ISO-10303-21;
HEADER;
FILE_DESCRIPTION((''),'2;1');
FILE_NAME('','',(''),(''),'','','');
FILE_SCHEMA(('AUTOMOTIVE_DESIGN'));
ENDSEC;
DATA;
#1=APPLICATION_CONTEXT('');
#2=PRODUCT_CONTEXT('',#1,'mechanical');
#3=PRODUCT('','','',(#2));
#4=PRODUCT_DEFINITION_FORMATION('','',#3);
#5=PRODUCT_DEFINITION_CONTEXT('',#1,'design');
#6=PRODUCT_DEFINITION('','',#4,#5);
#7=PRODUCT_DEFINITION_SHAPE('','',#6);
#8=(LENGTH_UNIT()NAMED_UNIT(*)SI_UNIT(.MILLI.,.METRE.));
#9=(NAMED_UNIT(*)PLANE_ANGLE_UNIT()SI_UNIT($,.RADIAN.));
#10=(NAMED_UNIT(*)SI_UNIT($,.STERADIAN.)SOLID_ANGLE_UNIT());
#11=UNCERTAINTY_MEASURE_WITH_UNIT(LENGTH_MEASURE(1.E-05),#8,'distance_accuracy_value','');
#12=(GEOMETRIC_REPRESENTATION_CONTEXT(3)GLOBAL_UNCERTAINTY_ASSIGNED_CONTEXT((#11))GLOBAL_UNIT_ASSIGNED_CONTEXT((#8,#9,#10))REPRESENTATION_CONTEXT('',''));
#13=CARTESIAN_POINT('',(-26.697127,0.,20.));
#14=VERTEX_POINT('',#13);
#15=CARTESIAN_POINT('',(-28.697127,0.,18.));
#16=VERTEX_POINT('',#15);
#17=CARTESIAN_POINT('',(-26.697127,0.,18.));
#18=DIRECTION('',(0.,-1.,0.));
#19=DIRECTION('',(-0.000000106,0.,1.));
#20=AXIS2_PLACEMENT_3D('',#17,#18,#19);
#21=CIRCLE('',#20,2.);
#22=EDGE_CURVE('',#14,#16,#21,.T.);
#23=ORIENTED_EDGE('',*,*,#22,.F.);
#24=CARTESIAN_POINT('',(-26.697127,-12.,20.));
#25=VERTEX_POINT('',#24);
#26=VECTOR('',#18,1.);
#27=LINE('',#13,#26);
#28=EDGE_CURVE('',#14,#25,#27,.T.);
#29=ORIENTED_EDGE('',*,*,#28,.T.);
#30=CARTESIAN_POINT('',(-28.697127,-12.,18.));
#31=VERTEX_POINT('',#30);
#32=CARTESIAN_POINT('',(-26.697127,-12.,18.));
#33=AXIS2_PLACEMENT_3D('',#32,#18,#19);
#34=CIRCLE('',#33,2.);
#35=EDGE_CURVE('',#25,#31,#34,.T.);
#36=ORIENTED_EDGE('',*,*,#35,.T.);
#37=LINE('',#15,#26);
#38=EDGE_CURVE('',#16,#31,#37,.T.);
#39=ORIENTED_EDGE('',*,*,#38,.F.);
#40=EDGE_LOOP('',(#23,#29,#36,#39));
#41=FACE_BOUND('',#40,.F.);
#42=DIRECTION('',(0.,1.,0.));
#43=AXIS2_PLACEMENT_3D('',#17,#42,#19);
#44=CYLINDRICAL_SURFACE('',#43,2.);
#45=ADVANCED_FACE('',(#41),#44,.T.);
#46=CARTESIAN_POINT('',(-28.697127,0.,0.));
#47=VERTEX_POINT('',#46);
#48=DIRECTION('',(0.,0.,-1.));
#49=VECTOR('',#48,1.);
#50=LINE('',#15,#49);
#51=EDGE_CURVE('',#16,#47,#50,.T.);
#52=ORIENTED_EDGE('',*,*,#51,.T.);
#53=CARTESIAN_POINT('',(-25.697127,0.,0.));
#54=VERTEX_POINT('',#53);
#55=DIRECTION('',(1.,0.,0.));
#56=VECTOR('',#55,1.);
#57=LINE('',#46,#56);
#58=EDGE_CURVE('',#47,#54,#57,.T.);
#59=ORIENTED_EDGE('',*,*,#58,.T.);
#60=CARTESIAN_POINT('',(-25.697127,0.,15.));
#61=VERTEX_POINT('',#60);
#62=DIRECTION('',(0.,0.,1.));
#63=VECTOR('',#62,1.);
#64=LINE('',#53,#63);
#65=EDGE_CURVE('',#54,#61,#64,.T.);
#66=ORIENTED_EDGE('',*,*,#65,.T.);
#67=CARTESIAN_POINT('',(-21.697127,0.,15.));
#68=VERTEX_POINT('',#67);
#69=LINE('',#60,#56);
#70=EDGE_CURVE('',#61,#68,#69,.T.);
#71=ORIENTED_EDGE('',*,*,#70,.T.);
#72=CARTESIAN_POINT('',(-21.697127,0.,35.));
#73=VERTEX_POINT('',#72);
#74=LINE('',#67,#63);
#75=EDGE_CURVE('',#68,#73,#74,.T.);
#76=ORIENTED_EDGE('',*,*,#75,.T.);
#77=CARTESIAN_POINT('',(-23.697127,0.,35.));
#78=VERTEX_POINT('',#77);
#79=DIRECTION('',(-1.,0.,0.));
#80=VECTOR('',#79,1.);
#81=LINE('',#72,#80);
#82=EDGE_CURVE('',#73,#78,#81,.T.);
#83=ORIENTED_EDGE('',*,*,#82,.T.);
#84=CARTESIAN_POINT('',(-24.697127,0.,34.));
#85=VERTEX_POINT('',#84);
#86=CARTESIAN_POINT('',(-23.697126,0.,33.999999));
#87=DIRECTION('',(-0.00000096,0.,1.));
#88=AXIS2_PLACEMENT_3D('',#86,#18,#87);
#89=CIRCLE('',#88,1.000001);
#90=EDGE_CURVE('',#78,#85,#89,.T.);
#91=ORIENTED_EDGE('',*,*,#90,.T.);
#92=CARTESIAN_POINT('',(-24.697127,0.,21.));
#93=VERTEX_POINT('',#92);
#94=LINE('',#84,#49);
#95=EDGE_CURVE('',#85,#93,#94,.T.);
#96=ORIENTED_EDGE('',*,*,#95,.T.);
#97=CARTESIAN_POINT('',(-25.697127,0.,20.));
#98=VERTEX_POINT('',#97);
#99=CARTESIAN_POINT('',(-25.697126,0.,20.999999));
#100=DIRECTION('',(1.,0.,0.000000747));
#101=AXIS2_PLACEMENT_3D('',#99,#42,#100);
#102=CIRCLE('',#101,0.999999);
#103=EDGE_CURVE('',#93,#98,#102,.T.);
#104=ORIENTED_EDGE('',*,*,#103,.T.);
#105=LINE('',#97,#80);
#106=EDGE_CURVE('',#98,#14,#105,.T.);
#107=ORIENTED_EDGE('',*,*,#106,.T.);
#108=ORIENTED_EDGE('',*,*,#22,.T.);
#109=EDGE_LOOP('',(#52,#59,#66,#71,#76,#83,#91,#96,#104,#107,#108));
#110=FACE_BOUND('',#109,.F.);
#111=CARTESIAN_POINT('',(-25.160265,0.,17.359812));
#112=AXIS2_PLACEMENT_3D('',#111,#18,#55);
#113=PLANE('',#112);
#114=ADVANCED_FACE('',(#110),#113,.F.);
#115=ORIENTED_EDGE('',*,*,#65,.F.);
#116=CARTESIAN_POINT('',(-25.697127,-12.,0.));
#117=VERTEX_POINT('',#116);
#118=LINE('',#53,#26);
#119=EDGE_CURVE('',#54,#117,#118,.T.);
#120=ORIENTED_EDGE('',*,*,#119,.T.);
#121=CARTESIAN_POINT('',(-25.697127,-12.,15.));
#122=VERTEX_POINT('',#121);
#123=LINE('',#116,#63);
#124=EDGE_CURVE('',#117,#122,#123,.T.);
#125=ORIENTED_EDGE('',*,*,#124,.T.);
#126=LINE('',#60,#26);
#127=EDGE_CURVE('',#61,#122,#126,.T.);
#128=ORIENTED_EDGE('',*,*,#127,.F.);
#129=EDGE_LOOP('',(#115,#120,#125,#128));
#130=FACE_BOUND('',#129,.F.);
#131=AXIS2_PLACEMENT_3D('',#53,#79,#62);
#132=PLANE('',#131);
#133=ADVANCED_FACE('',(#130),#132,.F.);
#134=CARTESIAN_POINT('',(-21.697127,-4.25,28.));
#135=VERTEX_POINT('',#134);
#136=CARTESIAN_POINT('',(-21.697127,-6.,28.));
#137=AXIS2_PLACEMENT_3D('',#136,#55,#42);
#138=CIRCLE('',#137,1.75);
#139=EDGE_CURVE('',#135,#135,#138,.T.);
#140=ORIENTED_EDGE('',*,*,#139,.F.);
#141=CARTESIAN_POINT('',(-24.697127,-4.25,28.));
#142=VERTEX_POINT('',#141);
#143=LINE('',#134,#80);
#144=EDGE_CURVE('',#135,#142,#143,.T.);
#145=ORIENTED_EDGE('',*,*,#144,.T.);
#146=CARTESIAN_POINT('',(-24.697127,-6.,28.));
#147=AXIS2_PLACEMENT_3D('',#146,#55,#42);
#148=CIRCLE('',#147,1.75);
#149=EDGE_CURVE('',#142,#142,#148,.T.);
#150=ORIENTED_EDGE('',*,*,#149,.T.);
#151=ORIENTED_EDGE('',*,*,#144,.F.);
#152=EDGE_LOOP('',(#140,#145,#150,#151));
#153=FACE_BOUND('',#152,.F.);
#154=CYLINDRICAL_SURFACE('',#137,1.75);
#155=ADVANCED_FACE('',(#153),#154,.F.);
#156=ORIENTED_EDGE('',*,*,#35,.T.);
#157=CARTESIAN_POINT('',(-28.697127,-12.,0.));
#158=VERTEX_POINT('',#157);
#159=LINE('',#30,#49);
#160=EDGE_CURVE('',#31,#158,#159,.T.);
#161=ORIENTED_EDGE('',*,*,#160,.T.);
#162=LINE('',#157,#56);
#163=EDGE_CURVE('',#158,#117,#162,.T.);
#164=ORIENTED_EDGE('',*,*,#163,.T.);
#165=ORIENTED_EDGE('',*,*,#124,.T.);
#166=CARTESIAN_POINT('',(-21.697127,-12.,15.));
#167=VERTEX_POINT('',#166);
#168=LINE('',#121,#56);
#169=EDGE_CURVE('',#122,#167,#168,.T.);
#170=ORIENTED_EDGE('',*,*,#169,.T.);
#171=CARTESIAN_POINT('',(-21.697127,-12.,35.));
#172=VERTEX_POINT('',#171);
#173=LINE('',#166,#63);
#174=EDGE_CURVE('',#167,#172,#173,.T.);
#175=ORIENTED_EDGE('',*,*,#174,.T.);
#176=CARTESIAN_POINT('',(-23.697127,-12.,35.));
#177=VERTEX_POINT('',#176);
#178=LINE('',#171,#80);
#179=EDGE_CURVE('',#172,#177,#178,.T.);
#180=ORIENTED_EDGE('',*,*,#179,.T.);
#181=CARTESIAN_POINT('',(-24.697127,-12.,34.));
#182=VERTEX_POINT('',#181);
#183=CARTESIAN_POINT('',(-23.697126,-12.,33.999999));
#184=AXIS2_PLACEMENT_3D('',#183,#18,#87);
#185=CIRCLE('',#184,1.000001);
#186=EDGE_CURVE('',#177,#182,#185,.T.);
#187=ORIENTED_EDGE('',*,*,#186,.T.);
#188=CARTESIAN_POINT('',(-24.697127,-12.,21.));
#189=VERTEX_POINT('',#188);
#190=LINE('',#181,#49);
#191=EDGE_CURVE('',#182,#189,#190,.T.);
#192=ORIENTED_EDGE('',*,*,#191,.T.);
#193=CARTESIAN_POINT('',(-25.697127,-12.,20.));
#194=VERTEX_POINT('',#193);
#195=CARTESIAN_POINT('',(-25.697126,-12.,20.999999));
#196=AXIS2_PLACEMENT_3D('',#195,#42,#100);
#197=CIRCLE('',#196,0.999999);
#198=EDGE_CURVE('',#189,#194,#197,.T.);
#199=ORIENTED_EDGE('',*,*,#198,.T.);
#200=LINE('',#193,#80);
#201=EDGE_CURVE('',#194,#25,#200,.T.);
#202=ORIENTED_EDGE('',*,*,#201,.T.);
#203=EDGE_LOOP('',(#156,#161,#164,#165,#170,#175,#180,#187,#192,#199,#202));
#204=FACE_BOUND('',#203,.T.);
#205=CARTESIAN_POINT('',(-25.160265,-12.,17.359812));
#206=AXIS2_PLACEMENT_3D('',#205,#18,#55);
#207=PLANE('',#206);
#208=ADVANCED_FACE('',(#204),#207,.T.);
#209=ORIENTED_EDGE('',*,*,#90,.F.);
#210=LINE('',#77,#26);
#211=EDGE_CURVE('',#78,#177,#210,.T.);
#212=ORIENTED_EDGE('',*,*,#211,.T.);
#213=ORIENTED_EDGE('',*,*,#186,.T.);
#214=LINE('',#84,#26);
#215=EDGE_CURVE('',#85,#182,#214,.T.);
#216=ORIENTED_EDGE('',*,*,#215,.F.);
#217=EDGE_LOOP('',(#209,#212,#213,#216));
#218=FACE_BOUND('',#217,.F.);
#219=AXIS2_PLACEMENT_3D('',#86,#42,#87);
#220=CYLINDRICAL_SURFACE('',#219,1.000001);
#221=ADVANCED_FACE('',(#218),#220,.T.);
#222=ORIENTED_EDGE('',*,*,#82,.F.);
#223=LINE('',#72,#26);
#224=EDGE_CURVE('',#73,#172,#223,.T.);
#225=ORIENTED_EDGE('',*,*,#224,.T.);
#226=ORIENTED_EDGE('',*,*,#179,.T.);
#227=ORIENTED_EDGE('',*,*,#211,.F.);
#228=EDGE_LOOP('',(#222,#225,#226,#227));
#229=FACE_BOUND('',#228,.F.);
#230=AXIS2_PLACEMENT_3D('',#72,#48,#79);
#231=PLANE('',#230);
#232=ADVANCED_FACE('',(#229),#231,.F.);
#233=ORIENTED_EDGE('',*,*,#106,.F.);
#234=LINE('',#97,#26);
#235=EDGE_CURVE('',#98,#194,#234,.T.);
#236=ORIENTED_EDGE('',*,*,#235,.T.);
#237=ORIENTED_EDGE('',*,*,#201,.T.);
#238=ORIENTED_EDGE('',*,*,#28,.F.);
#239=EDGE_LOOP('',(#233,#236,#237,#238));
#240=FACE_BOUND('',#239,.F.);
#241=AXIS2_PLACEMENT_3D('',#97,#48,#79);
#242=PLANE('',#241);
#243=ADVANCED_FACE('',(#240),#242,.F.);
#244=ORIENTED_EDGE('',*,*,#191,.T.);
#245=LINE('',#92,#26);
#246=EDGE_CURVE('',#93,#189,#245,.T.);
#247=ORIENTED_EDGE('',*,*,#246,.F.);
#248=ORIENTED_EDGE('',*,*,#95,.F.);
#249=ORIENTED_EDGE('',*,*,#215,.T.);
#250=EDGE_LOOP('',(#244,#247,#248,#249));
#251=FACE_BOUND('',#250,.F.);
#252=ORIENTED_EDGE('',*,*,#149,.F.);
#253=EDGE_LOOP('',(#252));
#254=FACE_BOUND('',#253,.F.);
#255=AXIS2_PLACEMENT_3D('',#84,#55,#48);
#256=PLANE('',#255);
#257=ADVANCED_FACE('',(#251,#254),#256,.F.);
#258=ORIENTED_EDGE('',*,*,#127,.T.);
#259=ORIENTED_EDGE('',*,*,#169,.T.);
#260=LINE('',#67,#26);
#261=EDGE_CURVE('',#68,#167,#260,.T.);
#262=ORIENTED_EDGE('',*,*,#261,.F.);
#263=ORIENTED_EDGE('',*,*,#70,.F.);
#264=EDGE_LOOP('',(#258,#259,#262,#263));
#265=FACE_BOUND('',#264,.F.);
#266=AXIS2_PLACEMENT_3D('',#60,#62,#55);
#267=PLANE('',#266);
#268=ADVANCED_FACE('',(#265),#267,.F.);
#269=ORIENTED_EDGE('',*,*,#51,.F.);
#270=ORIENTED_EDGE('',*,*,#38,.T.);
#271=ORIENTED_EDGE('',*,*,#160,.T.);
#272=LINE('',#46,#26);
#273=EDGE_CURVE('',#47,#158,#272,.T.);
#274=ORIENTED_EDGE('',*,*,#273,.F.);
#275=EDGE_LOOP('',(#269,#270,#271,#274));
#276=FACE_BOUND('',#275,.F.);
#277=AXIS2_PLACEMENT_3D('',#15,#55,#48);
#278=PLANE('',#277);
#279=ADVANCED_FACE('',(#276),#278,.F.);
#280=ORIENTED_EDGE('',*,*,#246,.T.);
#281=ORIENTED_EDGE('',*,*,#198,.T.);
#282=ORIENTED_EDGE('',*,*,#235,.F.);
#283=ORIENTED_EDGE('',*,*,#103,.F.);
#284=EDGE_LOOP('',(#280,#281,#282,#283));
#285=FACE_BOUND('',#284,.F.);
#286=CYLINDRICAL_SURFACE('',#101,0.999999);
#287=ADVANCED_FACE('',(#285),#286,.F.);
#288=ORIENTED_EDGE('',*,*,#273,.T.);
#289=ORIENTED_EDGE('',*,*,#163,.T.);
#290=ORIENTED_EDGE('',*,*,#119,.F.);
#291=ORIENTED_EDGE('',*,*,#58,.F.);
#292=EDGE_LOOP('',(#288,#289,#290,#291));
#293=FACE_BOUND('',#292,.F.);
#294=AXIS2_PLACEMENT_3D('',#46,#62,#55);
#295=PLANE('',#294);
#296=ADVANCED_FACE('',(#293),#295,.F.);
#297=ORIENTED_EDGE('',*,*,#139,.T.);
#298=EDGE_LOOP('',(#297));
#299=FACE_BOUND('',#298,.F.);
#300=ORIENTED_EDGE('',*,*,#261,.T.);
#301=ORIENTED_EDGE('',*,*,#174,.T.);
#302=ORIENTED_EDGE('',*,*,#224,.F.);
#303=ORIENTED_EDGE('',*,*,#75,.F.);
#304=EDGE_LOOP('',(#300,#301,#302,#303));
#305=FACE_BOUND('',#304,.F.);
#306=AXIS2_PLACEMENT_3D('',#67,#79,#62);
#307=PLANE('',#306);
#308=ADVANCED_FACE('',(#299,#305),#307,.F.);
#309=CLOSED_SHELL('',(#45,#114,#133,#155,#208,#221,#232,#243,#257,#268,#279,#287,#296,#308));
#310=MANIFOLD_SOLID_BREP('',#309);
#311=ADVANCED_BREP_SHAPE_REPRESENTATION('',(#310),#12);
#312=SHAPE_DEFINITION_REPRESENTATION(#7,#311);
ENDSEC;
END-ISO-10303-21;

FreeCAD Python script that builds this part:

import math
import FreeCAD as App
import Part
import Sketcher
from FreeCAD import Vector
Q = App.Units.Quantity

doc = App.newDocument("Part")
body = doc.addObject("PartDesign::Body", "Body")

# Sketch on XZ plane
sketch1 = body.newObject("Sketcher::SketchObject", "Sketch")
sketch1.AttachmentSupport = (doc.getObject("XZ_Plane"), [""])
sketch1.MapMode = "FlatFace"
sketch1.addGeometry(Part.LineSegment(Vector(-28.697127, 0, 0), Vector(-25.697127, 0, 0)), False)
sketch1.addGeometry(Part.LineSegment(Vector(-25.697127, 0, 0), Vector(-25.697127, 15, 0)), False)
sketch1.addGeometry(Part.LineSegment(Vector(-25.697127, 15, 0), Vector(-21.697127, 15, 0)), False)
sketch1.addGeometry(Part.LineSegment(Vector(-21.697127, 15, 0), Vector(-21.697127, 35, 0)), False)
sketch1.addGeometry(Part.LineSegment(Vector(-21.697127, 35, 0), Vector(-23.697127, 35, 0)), False)
sketch1.addGeometry(Part.ArcOfCircle(Part.Circle(Vector(-23.697126, 33.999999, 0), Vector(0, 0, 1), 1.000001), math.radians(90.000055), math.radians(179.999945)), False)
sketch1.addGeometry(Part.LineSegment(Vector(-24.697127, 34, 0), Vector(-24.697127, 21, 0)), False)
sketch1.addGeometry(Part.ArcOfCircle(Part.Circle(Vector(-25.697126, 20.999999, 0), Vector(0, 0, 1), 0.999999), math.radians(-90.000043), math.radians(0.000043)), False)
sketch1.addGeometry(Part.LineSegment(Vector(-25.697127, 20, 0), Vector(-26.697127, 20, 0)), False)
sketch1.addGeometry(Part.ArcOfCircle(Part.Circle(Vector(-26.697127, 18, 0), Vector(0, 0, 1), 2), math.radians(90.000006), math.radians(179.999994)), False)
sketch1.addGeometry(Part.LineSegment(Vector(-28.697127, 18, 0), Vector(-28.697127, 0, 0)), False)
sketch1.addConstraint(Sketcher.Constraint("Coincident", 0, 2, 1, 1))
sketch1.addConstraint(Sketcher.Constraint("Coincident", 1, 2, 2, 1))
sketch1.addConstraint(Sketcher.Constraint("Coincident", 2, 2, 3, 1))
sketch1.addConstraint(Sketcher.Constraint("Coincident", 3, 2, 4, 1))
sketch1.addConstraint(Sketcher.Constraint("Tangent", 4, 2, 5, 1))
sketch1.addConstraint(Sketcher.Constraint("Tangent", 5, 2, 6, 1))
sketch1.addConstraint(Sketcher.Constraint("Tangent", 6, 2, 7, 2))
sketch1.addConstraint(Sketcher.Constraint("Tangent", 7, 1, 8, 1))
sketch1.addConstraint(Sketcher.Constraint("Tangent", 8, 2, 9, 1))
sketch1.addConstraint(Sketcher.Constraint("Tangent", 9, 2, 10, 1))
sketch1.addConstraint(Sketcher.Constraint("Coincident", 10, 2, 0, 1))
sketch1.addConstraint(Sketcher.Constraint("Horizontal", 0))
sketch1.addConstraint(Sketcher.Constraint("Vertical", 1))
sketch1.addConstraint(Sketcher.Constraint("Horizontal", 2))
sketch1.addConstraint(Sketcher.Constraint("Vertical", 3))
sketch1.addConstraint(Sketcher.Constraint("Horizontal", 4))
sketch1.addConstraint(Sketcher.Constraint("Vertical", 6))
sketch1.addConstraint(Sketcher.Constraint("Horizontal", 8))
sketch1.addConstraint(Sketcher.Constraint("Vertical", 10))
sketch1.addConstraint(Sketcher.Constraint("Equal", 5, 7))
sketch1.addConstraint(Sketcher.Constraint("PointOnObject", 0, 2, -1))
sketch1.addConstraint(Sketcher.Constraint("Vertical", 7, 3, 0, 2))
sketch1.addConstraint(Sketcher.Constraint("Radius", 5, Q("1.000001 mm")))
sketch1.addConstraint(Sketcher.Constraint("Radius", 9, Q("2 mm")))
sketch1.addConstraint(Sketcher.Constraint("DistanceX", 0, 1, 0, 2, Q("3 mm")))
sketch1.addConstraint(Sketcher.Constraint("DistanceX", 2, 1, 2, 2, Q("4 mm")))
sketch1.addConstraint(Sketcher.Constraint("DistanceY", 1, 1, 1, 2, Q("15 mm")))
sketch1.addConstraint(Sketcher.Constraint("DistanceY", 3, 1, 3, 2, Q("20 mm")))
sketch1.addConstraint(Sketcher.Constraint("DistanceY", 6, 2, 6, 1, Q("13 mm")))
sketch1.addConstraint(Sketcher.Constraint("DistanceX", 5, 3, -1, 1, Q("23.697126 mm")))
pad1 = body.newObject("PartDesign::Pad", "Pad")
pad1.Profile = sketch1
pad1.Length = 12

# Sketch on YZ plane
sketch2 = body.newObject("Sketcher::SketchObject", "Sketch001")
sketch2.AttachmentSupport = (doc.getObject("YZ_Plane"), [""])
sketch2.MapMode = "FlatFace"
sketch2.AttachmentOffset = App.Placement(Vector(0, 0, -21.697127), App.Rotation())
sketch2.addGeometry(Part.Circle(Vector(-6, 28, 0), Vector(0, 0, 1), 1.75), False)
sketch2.addConstraint(Sketcher.Constraint("Diameter", 0, Q("3.5 mm")))
sketch2.addConstraint(Sketcher.Constraint("DistanceX", 0, 3, -1, 1, Q("6 mm")))
sketch2.addConstraint(Sketcher.Constraint("DistanceY", -1, 1, 0, 3, Q("28 mm")))
pocket1 = body.newObject("PartDesign::Pocket", "Pocket")
pocket1.Profile = sketch2
pocket1.Type = "ThroughAll"

doc.recompute()
